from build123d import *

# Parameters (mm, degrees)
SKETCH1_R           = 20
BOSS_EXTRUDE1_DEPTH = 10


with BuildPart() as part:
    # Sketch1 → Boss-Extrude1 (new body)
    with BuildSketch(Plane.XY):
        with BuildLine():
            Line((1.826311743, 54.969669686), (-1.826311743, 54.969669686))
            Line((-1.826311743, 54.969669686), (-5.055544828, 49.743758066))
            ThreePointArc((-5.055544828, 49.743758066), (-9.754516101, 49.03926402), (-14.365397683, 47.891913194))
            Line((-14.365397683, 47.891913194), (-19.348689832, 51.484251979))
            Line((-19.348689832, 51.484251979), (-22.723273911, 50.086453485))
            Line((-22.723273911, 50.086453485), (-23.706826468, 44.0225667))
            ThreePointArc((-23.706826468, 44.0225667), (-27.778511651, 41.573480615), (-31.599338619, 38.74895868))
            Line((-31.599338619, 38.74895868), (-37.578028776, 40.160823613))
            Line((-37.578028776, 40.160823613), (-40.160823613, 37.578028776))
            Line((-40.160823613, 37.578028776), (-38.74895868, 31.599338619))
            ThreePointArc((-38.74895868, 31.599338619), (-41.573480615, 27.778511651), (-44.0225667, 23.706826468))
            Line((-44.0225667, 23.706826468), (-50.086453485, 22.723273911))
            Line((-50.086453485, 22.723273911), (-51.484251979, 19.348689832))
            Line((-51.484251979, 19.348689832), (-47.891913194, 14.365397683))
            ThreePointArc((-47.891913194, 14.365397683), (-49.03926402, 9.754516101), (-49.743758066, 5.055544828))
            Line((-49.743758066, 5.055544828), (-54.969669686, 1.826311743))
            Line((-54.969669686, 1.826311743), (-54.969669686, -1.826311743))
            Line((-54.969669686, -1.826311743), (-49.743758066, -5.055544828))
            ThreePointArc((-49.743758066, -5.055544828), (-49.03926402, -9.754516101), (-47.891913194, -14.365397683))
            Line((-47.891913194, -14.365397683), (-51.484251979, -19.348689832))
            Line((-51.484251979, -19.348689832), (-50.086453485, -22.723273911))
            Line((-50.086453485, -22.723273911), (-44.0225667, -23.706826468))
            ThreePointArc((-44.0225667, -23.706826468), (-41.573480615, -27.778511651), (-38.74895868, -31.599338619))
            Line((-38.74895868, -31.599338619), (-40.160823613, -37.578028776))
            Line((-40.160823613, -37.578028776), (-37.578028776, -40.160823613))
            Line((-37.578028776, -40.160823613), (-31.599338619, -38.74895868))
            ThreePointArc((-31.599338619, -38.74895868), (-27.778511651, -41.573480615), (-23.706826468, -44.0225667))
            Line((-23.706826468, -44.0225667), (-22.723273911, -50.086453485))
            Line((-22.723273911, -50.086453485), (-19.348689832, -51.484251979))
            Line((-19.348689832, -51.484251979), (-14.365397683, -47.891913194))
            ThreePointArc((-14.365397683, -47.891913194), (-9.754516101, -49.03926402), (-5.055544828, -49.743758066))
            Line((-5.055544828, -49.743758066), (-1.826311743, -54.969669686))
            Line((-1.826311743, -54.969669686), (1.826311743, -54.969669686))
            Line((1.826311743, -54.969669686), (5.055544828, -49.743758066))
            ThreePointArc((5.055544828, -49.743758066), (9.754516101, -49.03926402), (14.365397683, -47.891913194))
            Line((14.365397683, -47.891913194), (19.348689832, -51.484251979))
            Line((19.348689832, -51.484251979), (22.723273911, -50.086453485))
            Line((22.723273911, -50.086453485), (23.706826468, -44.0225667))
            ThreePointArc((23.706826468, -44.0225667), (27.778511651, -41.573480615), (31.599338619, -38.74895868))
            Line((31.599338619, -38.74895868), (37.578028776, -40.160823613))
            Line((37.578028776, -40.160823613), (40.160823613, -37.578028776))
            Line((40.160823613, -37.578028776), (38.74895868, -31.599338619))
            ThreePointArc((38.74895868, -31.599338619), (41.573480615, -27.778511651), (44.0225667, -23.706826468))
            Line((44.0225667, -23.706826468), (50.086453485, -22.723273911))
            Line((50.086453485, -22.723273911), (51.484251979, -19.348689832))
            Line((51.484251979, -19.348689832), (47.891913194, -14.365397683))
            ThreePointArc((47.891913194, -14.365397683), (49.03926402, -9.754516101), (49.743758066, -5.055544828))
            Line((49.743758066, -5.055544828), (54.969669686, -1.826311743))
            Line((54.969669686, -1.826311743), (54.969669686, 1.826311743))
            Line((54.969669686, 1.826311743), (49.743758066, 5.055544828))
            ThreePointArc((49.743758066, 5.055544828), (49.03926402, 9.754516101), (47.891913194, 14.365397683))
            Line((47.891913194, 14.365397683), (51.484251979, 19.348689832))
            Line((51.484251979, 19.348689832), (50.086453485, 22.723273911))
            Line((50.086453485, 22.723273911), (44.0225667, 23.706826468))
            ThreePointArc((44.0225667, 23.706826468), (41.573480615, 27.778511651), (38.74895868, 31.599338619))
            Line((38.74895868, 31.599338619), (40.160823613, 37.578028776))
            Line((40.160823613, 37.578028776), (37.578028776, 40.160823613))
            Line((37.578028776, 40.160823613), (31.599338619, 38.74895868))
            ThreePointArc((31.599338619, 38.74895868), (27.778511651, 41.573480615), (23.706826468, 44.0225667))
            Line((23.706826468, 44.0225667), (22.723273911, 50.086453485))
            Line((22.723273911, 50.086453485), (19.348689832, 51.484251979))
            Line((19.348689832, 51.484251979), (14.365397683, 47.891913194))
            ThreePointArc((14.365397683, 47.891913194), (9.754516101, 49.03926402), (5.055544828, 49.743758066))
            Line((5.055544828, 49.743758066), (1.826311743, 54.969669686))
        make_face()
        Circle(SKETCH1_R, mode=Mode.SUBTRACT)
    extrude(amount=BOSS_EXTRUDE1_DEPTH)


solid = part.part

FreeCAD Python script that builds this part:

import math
import FreeCAD as App
import Part
import Sketcher
Q = App.Units.Quantity

doc = App.newDocument("Part")
body = doc.addObject("PartDesign::Body", "Body")

# Sketch on XY plane
sketch1 = body.newObject("Sketcher::SketchObject", "Sketch")
sketch1.AttachmentSupport = (doc.getObject("XY_Plane"), [""])
sketch1.MapMode = "FlatFace"
sketch1.addGeometry([
    Part.LineSegment(App.Vector(1.8, 55, 0), App.Vector(-1.8, 55, 0)),  # 0
    Part.LineSegment(App.Vector(-1.8, 55, 0), App.Vector(-5.1, 49.7, 0)),  # 1
    Part.ArcOfCircle(Part.Circle(App.Vector(0, 0, 0), App.Vector(0, 0, 1), 50), math.radians(95.8), math.radians(106.7)),  # 2
    Part.LineSegment(App.Vector(-14.4, 47.9, 0), App.Vector(-19.3, 51.5, 0)),  # 3
    Part.LineSegment(App.Vector(-19.3, 51.5, 0), App.Vector(-22.7, 50.1, 0)),  # 4
    Part.LineSegment(App.Vector(-22.7, 50.1, 0), App.Vector(-23.7, 44, 0)),  # 5
    Part.ArcOfCircle(Part.Circle(App.Vector(0, 0, 0), App.Vector(0, 0, 1), 50), math.radians(118.3), math.radians(129.2)),  # 6
    Part.LineSegment(App.Vector(-31.6, 38.7, 0), App.Vector(-37.6, 40.2, 0)),  # 7
    Part.LineSegment(App.Vector(-37.6, 40.2, 0), App.Vector(-40.2, 37.6, 0)),  # 8
    Part.LineSegment(App.Vector(-40.2, 37.6, 0), App.Vector(-38.7, 31.6, 0)),  # 9
    Part.ArcOfCircle(Part.Circle(App.Vector(0, 0, 0), App.Vector(0, 0, 1), 50), math.radians(140.8), math.radians(151.7)),  # 10
    Part.LineSegment(App.Vector(-44, 23.7, 0), App.Vector(-50.1, 22.7, 0)),  # 11
    Part.LineSegment(App.Vector(-50.1, 22.7, 0), App.Vector(-51.5, 19.3, 0)),  # 12
    Part.LineSegment(App.Vector(-51.5, 19.3, 0), App.Vector(-47.9, 14.4, 0)),  # 13
    Part.ArcOfCircle(Part.Circle(App.Vector(0, 0, 0), App.Vector(0, 0, 1), 50), math.radians(163.3), math.radians(174.2)),  # 14
    Part.LineSegment(App.Vector(-49.7, 5.1, 0), App.Vector(-55, 1.8, 0)),  # 15
    Part.LineSegment(App.Vector(-55, 1.8, 0), App.Vector(-55, -1.8, 0)),  # 16
    Part.LineSegment(App.Vector(-55, -1.8, 0), App.Vector(-49.7, -5.1, 0)),  # 17
    Part.ArcOfCircle(Part.Circle(App.Vector(0, 0, 0), App.Vector(0, 0, 1), 50), math.radians(-174.2), math.radians(-163.3)),  # 18
    Part.LineSegment(App.Vector(-47.9, -14.4, 0), App.Vector(-51.5, -19.3, 0)),  # 19
    Part.LineSegment(App.Vector(-51.5, -19.3, 0), App.Vector(-50.1, -22.7, 0)),  # 20
    Part.LineSegment(App.Vector(-50.1, -22.7, 0), App.Vector(-44, -23.7, 0)),  # 21
    Part.ArcOfCircle(Part.Circle(App.Vector(0, 0, 0), App.Vector(0, 0, 1), 50), math.radians(-151.7), math.radians(-140.8)),  # 22
    Part.LineSegment(App.Vector(-38.7, -31.6, 0), App.Vector(-40.2, -37.6, 0)),  # 23
    Part.LineSegment(App.Vector(-40.2, -37.6, 0), App.Vector(-37.6, -40.2, 0)),  # 24
    Part.LineSegment(App.Vector(-37.6, -40.2, 0), App.Vector(-31.6, -38.7, 0)),  # 25
    Part.ArcOfCircle(Part.Circle(App.Vector(0, 0, 0), App.Vector(0, 0, 1), 50), math.radians(-129.2), math.radians(-118.3)),  # 26
    Part.LineSegment(App.Vector(-23.7, -44, 0), App.Vector(-22.7, -50.1, 0)),  # 27
    Part.LineSegment(App.Vector(-22.7, -50.1, 0), App.Vector(-19.3, -51.5, 0)),  # 28
    Part.LineSegment(App.Vector(-19.3, -51.5, 0), App.Vector(-14.4, -47.9, 0)),  # 29
    Part.ArcOfCircle(Part.Circle(App.Vector(0, 0, 0), App.Vector(0, 0, 1), 50), math.radians(-106.7), math.radians(-95.8)),  # 30
    Part.LineSegment(App.Vector(-5.1, -49.7, 0), App.Vector(-1.8, -55, 0)),  # 31
    Part.LineSegment(App.Vector(-1.8, -55, 0), App.Vector(1.8, -55, 0)),  # 32
    Part.LineSegment(App.Vector(1.8, -55, 0), App.Vector(5.1, -49.7, 0)),  # 33
    Part.ArcOfCircle(Part.Circle(App.Vector(0, 0, 0), App.Vector(0, 0, 1), 50), math.radians(-84.2), math.radians(-73.3)),  # 34
    Part.LineSegment(App.Vector(14.4, -47.9, 0), App.Vector(19.3, -51.5, 0)),  # 35
    Part.LineSegment(App.Vector(19.3, -51.5, 0), App.Vector(22.7, -50.1, 0)),  # 36
    Part.LineSegment(App.Vector(22.7, -50.1, 0), App.Vector(23.7, -44, 0)),  # 37
    Part.ArcOfCircle(Part.Circle(App.Vector(0, 0, 0), App.Vector(0, 0, 1), 50), math.radians(-61.7), math.radians(-50.8)),  # 38
    Part.LineSegment(App.Vector(31.6, -38.7, 0), App.Vector(37.6, -40.2, 0)),  # 39
    Part.LineSegment(App.Vector(37.6, -40.2, 0), App.Vector(40.2, -37.6, 0)),  # 40
    Part.LineSegment(App.Vector(40.2, -37.6, 0), App.Vector(38.7, -31.6, 0)),  # 41
    Part.ArcOfCircle(Part.Circle(App.Vector(0, 0, 0), App.Vector(0, 0, 1), 50), math.radians(-39.2), math.radians(-28.3)),  # 42
    Part.LineSegment(App.Vector(44, -23.7, 0), App.Vector(50.1, -22.7, 0)),  # 43
    Part.LineSegment(App.Vector(50.1, -22.7, 0), App.Vector(51.5, -19.3, 0)),  # 44
    Part.LineSegment(App.Vector(51.5, -19.3, 0), App.Vector(47.9, -14.4, 0)),  # 45
    Part.ArcOfCircle(Part.Circle(App.Vector(0, 0, 0), App.Vector(0, 0, 1), 50), math.radians(-16.7), math.radians(-5.8)),  # 46
    Part.LineSegment(App.Vector(49.7, -5.1, 0), App.Vector(55, -1.8, 0)),  # 47
    Part.LineSegment(App.Vector(55, -1.8, 0), App.Vector(55, 1.8, 0)),  # 48
    Part.LineSegment(App.Vector(55, 1.8, 0), App.Vector(49.7, 5.1, 0)),  # 49
    Part.ArcOfCircle(Part.Circle(App.Vector(0, 0, 0), App.Vector(0, 0, 1), 50), math.radians(5.8), math.radians(16.7)),  # 50
    Part.LineSegment(App.Vector(47.9, 14.4, 0), App.Vector(51.5, 19.3, 0)),  # 51
    Part.LineSegment(App.Vector(51.5, 19.3, 0), App.Vector(50.1, 22.7, 0)),  # 52
    Part.LineSegment(App.Vector(50.1, 22.7, 0), App.Vector(44, 23.7, 0)),  # 53
    Part.ArcOfCircle(Part.Circle(App.Vector(0, 0, 0), App.Vector(0, 0, 1), 50), math.radians(28.3), math.radians(39.2)),  # 54
    Part.LineSegment(App.Vector(38.7, 31.6, 0), App.Vector(40.2, 37.6, 0)),  # 55
    Part.LineSegment(App.Vector(40.2, 37.6, 0), App.Vector(37.6, 40.2, 0)),  # 56
    Part.LineSegment(App.Vector(37.6, 40.2, 0), App.Vector(31.6, 38.7, 0)),  # 57
    Part.ArcOfCircle(Part.Circle(App.Vector(0, 0, 0), App.Vector(0, 0, 1), 50), math.radians(50.8), math.radians(61.7)),  # 58
    Part.LineSegment(App.Vector(23.7, 44, 0), App.Vector(22.7, 50.1, 0)),  # 59
    Part.LineSegment(App.Vector(22.7, 50.1, 0), App.Vector(19.3, 51.5, 0)),  # 60
    Part.LineSegment(App.Vector(19.3, 51.5, 0), App.Vector(14.4, 47.9, 0)),  # 61
    Part.ArcOfCircle(Part.Circle(App.Vector(0, 0, 0), App.Vector(0, 0, 1), 50), math.radians(73.3), math.radians(84.2)),  # 62
    Part.LineSegment(App.Vector(5.1, 49.7, 0), App.Vector(1.8, 55, 0)),  # 63
    Part.Circle(App.Vector(0, 0, 0), App.Vector(0, 0, 1), 20),  # 64
], False)
sketch1.addConstraint([
    Sketcher.Constraint("Coincident", 0, 2, 1, 1),
    Sketcher.Constraint("Coincident", 1, 2, 2, 1),
    Sketcher.Constraint("Coincident", 2, 2, 3, 1),
    Sketcher.Constraint("Coincident", 3, 2, 4, 1),
    Sketcher.Constraint("Coincident", 4, 2, 5, 1),
    Sketcher.Constraint("Coincident", 5, 2, 6, 1),
    Sketcher.Constraint("Coincident", 6, 2, 7, 1),
    Sketcher.Constraint("Coincident", 7, 2, 8, 1),
    Sketcher.Constraint("Coincident", 8, 2, 9, 1),
    Sketcher.Constraint("Coincident", 9, 2, 10, 1),
    Sketcher.Constraint("Coincident", 10, 2, 11, 1),
    Sketcher.Constraint("Coincident", 11, 2, 12, 1),
    Sketcher.Constraint("Coincident", 12, 2, 13, 1),
    Sketcher.Constraint("Coincident", 13, 2, 14, 1),
    Sketcher.Constraint("Coincident", 14, 2, 15, 1),
    Sketcher.Constraint("Coincident", 15, 2, 16, 1),
    Sketcher.Constraint("Coincident", 16, 2, 17, 1),
    Sketcher.Constraint("Coincident", 17, 2, 18, 1),
    Sketcher.Constraint("Coincident", 18, 2, 19, 1),
    Sketcher.Constraint("Coincident", 19, 2, 20, 1),
    Sketcher.Constraint("Coincident", 20, 2, 21, 1),
    Sketcher.Constraint("Coincident", 21, 2, 22, 1),
    Sketcher.Constraint("Coincident", 22, 2, 23, 1),
    Sketcher.Constraint("Coincident", 23, 2, 24, 1),
    Sketcher.Constraint("Coincident", 24, 2, 25, 1),
    Sketcher.Constraint("Coincident", 25, 2, 26, 1),
    Sketcher.Constraint("Coincident", 26, 2, 27, 1),
    Sketcher.Constraint("Coincident", 27, 2, 28, 1),
    Sketcher.Constraint("Coincident", 28, 2, 29, 1),
    Sketcher.Constraint("Coincident", 29, 2, 30, 1),
    Sketcher.Constraint("Coincident", 30, 2, 31, 1),
    Sketcher.Constraint("Coincident", 31, 2, 32, 1),
    Sketcher.Constraint("Coincident", 32, 2, 33, 1),
    Sketcher.Constraint("Coincident", 33, 2, 34, 1),
    Sketcher.Constraint("Coincident", 34, 2, 35, 1),
    Sketcher.Constraint("Coincident", 35, 2, 36, 1),
    Sketcher.Constraint("Coincident", 36, 2, 37, 1),
    Sketcher.Constraint("Coincident", 37, 2, 38, 1),
    Sketcher.Constraint("Coincident", 38, 2, 39, 1),
    Sketcher.Constraint("Coincident", 39, 2, 40, 1),
    Sketcher.Constraint("Coincident", 40, 2, 41, 1),
    Sketcher.Constraint("Coincident", 41, 2, 42, 1),
    Sketcher.Constraint("Coincident", 42, 2, 43, 1),
    Sketcher.Constraint("Coincident", 43, 2, 44, 1),
    Sketcher.Constraint("Coincident", 44, 2, 45, 1),
    Sketcher.Constraint("Coincident", 45, 2, 46, 1),
    Sketcher.Constraint("Coincident", 46, 2, 47, 1),
    Sketcher.Constraint("Coincident", 47, 2, 48, 1),
    Sketcher.Constraint("Coincident", 48, 2, 49, 1),
    Sketcher.Constraint("Coincident", 49, 2, 50, 1),
    Sketcher.Constraint("Coincident", 50, 2, 51, 1),
    Sketcher.Constraint("Coincident", 51, 2, 52, 1),
    Sketcher.Constraint("Coincident", 52, 2, 53, 1),
    Sketcher.Constraint("Coincident", 53, 2, 54, 1),
    Sketcher.Constraint("Coincident", 54, 2, 55, 1),
    Sketcher.Constraint("Coincident", 55, 2, 56, 1),
    Sketcher.Constraint("Coincident", 56, 2, 57, 1),
    Sketcher.Constraint("Coincident", 57, 2, 58, 1),
    Sketcher.Constraint("Coincident", 58, 2, 59, 1),
    Sketcher.Constraint("Coincident", 59, 2, 60, 1),
    Sketcher.Constraint("Coincident", 60, 2, 61, 1),
    Sketcher.Constraint("Coincident", 61, 2, 62, 1),
    Sketcher.Constraint("Coincident", 62, 2, 63, 1),
    Sketcher.Constraint("Coincident", 63, 2, 0, 1),
    Sketcher.Constraint("Horizontal", 0),
    Sketcher.Constraint("Vertical", 16),
    Sketcher.Constraint("Horizontal", 32),
    Sketcher.Constraint("Vertical", 48),
    Sketcher.Constraint("Coincident", 2, 3, -1, 1),
    Sketcher.Constraint("Coincident", 6, 3, -1, 1),
    Sketcher.Constraint("Coincident", 10, 3, -1, 1),
    Sketcher.Constraint("Coincident", 14, 3, -1, 1),
    Sketcher.Constraint("Coincident", 18, 3, -1, 1),
    Sketcher.Constraint("Coincident", 22, 3, -1, 1),
    Sketcher.Constraint("Coincident", 26, 3, -1, 1),
    Sketcher.Constraint("Coincident", 30, 3, -1, 1),
    Sketcher.Constraint("Coincident", 34, 3, -1, 1),
    Sketcher.Constraint("Coincident", 38, 3, -1, 1),
    Sketcher.Constraint("Coincident", 42, 3, -1, 1),
    Sketcher.Constraint("Coincident", 46, 3, -1, 1),
    Sketcher.Constraint("Coincident", 50, 3, -1, 1),
    Sketcher.Constraint("Coincident", 54, 3, -1, 1),
    Sketcher.Constraint("Coincident", 58, 3, -1, 1),
    Sketcher.Constraint("Coincident", 62, 3, -1, 1),
    Sketcher.Constraint("Coincident", 64, 3, -1, 1),
    Sketcher.Constraint("Equal", 2, 6),
    Sketcher.Constraint("Equal", 6, 10),
    Sketcher.Constraint("Equal", 10, 14),
    Sketcher.Constraint("Equal", 14, 18),
    Sketcher.Constraint("Equal", 18, 22),
    Sketcher.Constraint("Equal", 22, 26),
    Sketcher.Constraint("Equal", 26, 30),
    Sketcher.Constraint("Equal", 30, 34),
    Sketcher.Constraint("Equal", 34, 38),
    Sketcher.Constraint("Equal", 38, 42),
    Sketcher.Constraint("Equal", 42, 46),
    Sketcher.Constraint("Equal", 46, 50),
    Sketcher.Constraint("Equal", 50, 54),
    Sketcher.Constraint("Equal", 54, 58),
    Sketcher.Constraint("Equal", 58, 62),
    Sketcher.Constraint("Symmetric", 0, 2, 32, 2, -1, 1),
    Sketcher.Constraint("Symmetric", 3, 2, 35, 2, -1, 1),
    Sketcher.Constraint("Symmetric", 4, 2, 36, 2, -1, 1),
    Sketcher.Constraint("Symmetric", 7, 2, 39, 2, -1, 1),
    Sketcher.Constraint("Symmetric", 8, 2, 40, 2, -1, 1),
    Sketcher.Constraint("Symmetric", 11, 2, 43, 2, -1, 1),
    Sketcher.Constraint("Symmetric", 12, 2, 44, 2, -1, 1),
    Sketcher.Constraint("Symmetric", 15, 2, 47, 2, -1, 1),
    Sketcher.Constraint("Symmetric", 19, 2, 51, 2, -1, 1),
    Sketcher.Constraint("Symmetric", 20, 2, 52, 2, -1, 1),
    Sketcher.Constraint("Symmetric", 23, 2, 55, 2, -1, 1),
    Sketcher.Constraint("Symmetric", 24, 2, 56, 2, -1, 1),
    Sketcher.Constraint("Symmetric", 27, 2, 59, 2, -1, 1),
    Sketcher.Constraint("Symmetric", 28, 2, 60, 2, -1, 1),
    Sketcher.Constraint("Symmetric", 28, 2, 35, 2, -2),
    Sketcher.Constraint("Symmetric", 27, 2, 36, 2, -2),
    Sketcher.Constraint("Symmetric", 24, 2, 39, 2, -2),
    Sketcher.Constraint("Symmetric", 23, 2, 40, 2, -2),
    Sketcher.Constraint("Symmetric", 20, 2, 43, 2, -2),
    Sketcher.Constraint("Symmetric", 19, 2, 44, 2, -2),
    Sketcher.Constraint("Perpendicular", 1, 17),
    Sketcher.Constraint("Perpendicular", 3, 19),
    Sketcher.Constraint("Perpendicular", 4, 20),
    Sketcher.Constraint("Perpendicular", 5, 21),
    Sketcher.Constraint("Perpendicular", 7, 23),
    Sketcher.Constraint("Perpendicular", 8, 24),
    Sketcher.Constraint("Perpendicular", 9, 25),
    Sketcher.Constraint("Perpendicular", 11, 27),
    Sketcher.Constraint("Perpendicular", 13, 29),
    Sketcher.Constraint("Perpendicular", 15, 31),
    Sketcher.Constraint("Perpendicular", 17, 33),
    Sketcher.Constraint("Perpendicular", 19, 35),
    Sketcher.Constraint("Perpendicular", 21, 37),
    Sketcher.Constraint("Perpendicular", 23, 39),
    Sketcher.Constraint("Perpendicular", 25, 41),
    Sketcher.Constraint("Perpendicular", 27, 43),
    Sketcher.Constraint("Perpendicular", 29, 45),
    Sketcher.Constraint("Perpendicular", 31, 47),
    Sketcher.Constraint("Perpendicular", 33, 49),
    Sketcher.Constraint("Perpendicular", 35, 51),
    Sketcher.Constraint("Perpendicular", 37, 53),
    Sketcher.Constraint("Perpendicular", 39, 55),
    Sketcher.Constraint("Perpendicular", 41, 57),
    Sketcher.Constraint("Perpendicular", 43, 59),
    Sketcher.Constraint("Perpendicular", 45, 61),
    Sketcher.Constraint("Perpendicular", 47, 63),
    Sketcher.Constraint("Horizontal", 30, 2, 33, 2),
    Sketcher.Constraint("Horizontal", 29, 2, 34, 2),
    Sketcher.Constraint("Horizontal", 26, 2, 37, 2),
    Sketcher.Constraint("Horizontal", 25, 2, 38, 2),
    Sketcher.Constraint("Horizontal", 17, 2, 46, 2),
    Sketcher.Constraint("Horizontal", 16, 2, 47, 2),
    Sketcher.Constraint("Horizontal", 15, 2, 48, 2),
    Sketcher.Constraint("Horizontal", 1, 2, 62, 2),
    Sketcher.Constraint("Equal", 32, 16),
    Sketcher.Constraint("Equal", 1, 3),
    Sketcher.Constraint("Equal", 3, 5),
    Sketcher.Constraint("Equal", 5, 7),
    Sketcher.Constraint("Equal", 4, 8),
    Sketcher.Constraint("Equal", 7, 9),
    Sketcher.Constraint("Equal", 9, 11),
    Sketcher.Constraint("Equal", 8, 12),
    Sketcher.Constraint("Equal", 11, 13),
    Sketcher.Constraint("Equal", 13, 15),
    Sketcher.Constraint("Diameter", 64, 40.0),
    Sketcher.Constraint("Radius", 2, 50.0),
    Sketcher.Constraint("Angle", 4, Q("-157.5 deg")),
    Sketcher.Constraint("DistanceX", 0, 2, 0, 1, 3.652623),
    Sketcher.Constraint("DistanceY", -1, 1, 0, 2, 54.96967),
    Sketcher.Constraint("DistanceY", -1, 1, 1, 2, 49.743758),
    Sketcher.Constraint("DistanceX", 3, 2, -1, 1, 19.34869),
    Sketcher.Constraint("DistanceY", -1, 1, 3, 2, 51.484252),
    Sketcher.Constraint("DistanceX", 6, 2, -1, 1, 31.599339),
    Sketcher.Constraint("DistanceX", 7, 2, -1, 1, 37.578029),
])
pad1 = body.newObject("PartDesign::Pad", "Pad")
pad1.Profile = sketch1
pad1.Length = 10

doc.recompute()
